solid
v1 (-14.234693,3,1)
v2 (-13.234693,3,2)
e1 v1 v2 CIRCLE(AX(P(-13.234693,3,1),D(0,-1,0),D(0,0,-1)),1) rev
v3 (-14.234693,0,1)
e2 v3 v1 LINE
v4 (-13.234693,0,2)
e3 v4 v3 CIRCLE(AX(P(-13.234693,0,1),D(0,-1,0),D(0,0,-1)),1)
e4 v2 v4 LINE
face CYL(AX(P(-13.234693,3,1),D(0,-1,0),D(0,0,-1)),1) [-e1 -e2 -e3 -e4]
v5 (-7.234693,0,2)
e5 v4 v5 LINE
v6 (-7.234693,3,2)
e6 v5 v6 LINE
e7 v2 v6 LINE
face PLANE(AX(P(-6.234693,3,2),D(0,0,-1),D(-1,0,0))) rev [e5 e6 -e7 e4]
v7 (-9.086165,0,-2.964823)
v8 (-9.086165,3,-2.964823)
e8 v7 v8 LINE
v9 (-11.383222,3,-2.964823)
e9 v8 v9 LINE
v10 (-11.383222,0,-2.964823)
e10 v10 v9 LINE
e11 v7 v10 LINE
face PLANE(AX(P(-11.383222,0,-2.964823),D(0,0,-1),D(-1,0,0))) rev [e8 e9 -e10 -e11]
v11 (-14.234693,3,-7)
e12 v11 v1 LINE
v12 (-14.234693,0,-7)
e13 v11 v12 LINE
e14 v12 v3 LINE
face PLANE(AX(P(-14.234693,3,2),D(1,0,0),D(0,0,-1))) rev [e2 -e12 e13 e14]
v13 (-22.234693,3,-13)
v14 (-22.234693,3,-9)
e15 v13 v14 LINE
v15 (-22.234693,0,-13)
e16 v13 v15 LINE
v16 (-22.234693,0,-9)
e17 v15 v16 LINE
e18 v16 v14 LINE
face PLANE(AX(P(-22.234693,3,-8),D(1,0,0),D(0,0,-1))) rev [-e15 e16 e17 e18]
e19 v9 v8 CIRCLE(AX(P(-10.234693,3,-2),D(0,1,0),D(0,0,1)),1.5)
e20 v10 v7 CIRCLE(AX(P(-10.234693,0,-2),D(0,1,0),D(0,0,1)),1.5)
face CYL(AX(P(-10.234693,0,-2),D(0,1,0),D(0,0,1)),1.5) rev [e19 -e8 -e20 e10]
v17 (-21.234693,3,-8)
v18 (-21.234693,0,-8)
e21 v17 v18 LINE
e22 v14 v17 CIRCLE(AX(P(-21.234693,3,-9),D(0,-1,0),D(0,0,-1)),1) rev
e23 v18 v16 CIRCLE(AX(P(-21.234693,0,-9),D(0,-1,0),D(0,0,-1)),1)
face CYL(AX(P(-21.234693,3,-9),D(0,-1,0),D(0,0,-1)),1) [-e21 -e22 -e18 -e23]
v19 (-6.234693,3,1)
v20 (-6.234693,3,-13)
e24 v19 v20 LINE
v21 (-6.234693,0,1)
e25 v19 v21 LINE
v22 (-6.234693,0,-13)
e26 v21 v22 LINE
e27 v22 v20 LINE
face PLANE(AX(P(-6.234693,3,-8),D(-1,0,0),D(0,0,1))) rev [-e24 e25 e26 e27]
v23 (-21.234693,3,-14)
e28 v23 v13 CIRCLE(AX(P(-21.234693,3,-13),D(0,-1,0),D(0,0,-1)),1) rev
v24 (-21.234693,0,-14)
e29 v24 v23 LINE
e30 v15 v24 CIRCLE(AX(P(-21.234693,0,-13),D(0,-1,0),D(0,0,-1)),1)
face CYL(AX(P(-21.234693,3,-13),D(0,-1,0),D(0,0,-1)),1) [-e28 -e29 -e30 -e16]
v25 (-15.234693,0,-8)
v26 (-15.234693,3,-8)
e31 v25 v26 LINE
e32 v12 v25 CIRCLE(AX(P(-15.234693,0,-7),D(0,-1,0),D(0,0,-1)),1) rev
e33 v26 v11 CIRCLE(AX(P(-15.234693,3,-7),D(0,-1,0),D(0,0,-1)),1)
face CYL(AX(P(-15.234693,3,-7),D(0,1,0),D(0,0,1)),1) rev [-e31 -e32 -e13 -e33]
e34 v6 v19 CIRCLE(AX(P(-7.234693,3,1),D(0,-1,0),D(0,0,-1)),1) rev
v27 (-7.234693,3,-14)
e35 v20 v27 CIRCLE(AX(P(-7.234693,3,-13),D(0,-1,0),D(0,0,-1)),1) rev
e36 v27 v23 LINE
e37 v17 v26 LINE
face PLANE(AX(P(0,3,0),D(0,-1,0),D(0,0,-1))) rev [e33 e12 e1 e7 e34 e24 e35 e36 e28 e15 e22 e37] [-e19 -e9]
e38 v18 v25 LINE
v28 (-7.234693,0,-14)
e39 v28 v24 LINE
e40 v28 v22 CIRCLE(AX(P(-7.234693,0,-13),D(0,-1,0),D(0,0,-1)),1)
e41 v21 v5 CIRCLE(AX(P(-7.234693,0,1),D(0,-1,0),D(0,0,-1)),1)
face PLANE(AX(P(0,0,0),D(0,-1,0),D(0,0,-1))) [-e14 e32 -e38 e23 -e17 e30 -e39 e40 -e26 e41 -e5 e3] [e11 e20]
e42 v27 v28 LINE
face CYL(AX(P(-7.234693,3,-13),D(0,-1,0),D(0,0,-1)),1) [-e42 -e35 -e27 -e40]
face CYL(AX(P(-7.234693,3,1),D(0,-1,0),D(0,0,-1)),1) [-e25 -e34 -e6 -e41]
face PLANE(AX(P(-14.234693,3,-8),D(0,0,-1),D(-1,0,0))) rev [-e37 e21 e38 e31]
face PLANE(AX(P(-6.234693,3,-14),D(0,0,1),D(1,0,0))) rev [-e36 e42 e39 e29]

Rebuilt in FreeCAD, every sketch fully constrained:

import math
import FreeCAD as App
import Part
import Sketcher
from FreeCAD import Vector


def edges_at(feature, points):
    """Names of the edges that pass closest to the given points."""
    edges = feature.Shape.Edges
    near = lambda p: min(range(len(edges)), key=lambda i: edges[i].distToShape(Part.Vertex(*p))[0])
    return sorted({f"Edge{near(p) + 1}" for p in points})


def add_polygon(sketch, points):
    """Adds a closed chain of lines whose ends are joined by coincident constraints."""
    first, n = sketch.GeometryCount, len(points)
    for a, b in zip(points, points[1:] + points[:1]):
        sketch.addGeometry(Part.LineSegment(App.Vector(*a, 0), App.Vector(*b, 0)), False)
    for i in range(n):
        sketch.addConstraint(Sketcher.Constraint("Coincident", first + i, 2, first + (i + 1) % n, 1))

doc = App.newDocument("Part")
body = doc.addObject("PartDesign::Body", "Body")

sketch1 = body.newObject("Sketcher::SketchObject", "Sketch")
sketch1.AttachmentSupport = (doc.getObject("XZ_Plane"), [""])
sketch1.MapMode = "FlatFace"
add_polygon(sketch1, [(-14, 2), (-6, 2), (-6, -14), (-22, -14), (-22, -8), (-14, -8)])
sketch1.addConstraint([
    Sketcher.Constraint("Horizontal", 0),
    Sketcher.Constraint("Vertical", 1),
    Sketcher.Constraint("Horizontal", 2),
    Sketcher.Constraint("Vertical", 3),
    Sketcher.Constraint("Horizontal", 4),
    Sketcher.Constraint("Vertical", 5),
    Sketcher.Constraint("Equal", 0, 4),
    Sketcher.Constraint("Equal", 2, 1),
    Sketcher.Constraint("DistanceX", 0, 1, 0, 2, 8.0),
    Sketcher.Constraint("DistanceY", 3, 1, 3, 2, 6.0),
    Sketcher.Constraint("DistanceY", -1, 1, 0, 2, 2.0),
    Sketcher.Constraint("DistanceX", 0, 2, -1, 1, 6.234693),
])
pad1 = body.newObject("PartDesign::Pad", "Pad")
pad1.Profile = sketch1
pad1.Length = 3
pad1.Reversed = True
doc.recompute()

fillet = body.newObject("PartDesign::Fillet", "Fillet")
fillet.Base = (pad1, edges_at(pad1, [(-22.235, 1.5, -14)]))
fillet.Radius = 1
doc.recompute()

fillet2 = body.newObject("PartDesign::Fillet", "Fillet001")
fillet2.Base = (fillet, edges_at(fillet, [(-22.235, 1.5, -8)]))
fillet2.Radius = 1
doc.recompute()

fillet3 = body.newObject("PartDesign::Fillet", "Fillet002")
fillet3.Base = (fillet2, edges_at(fillet2, [(-6.235, 1.5, -14)]))
fillet3.Radius = 1
doc.recompute()

fillet4 = body.newObject("PartDesign::Fillet", "Fillet003")
fillet4.Base = (fillet3, edges_at(fillet3, [(-14.235, 1.5, 2)]))
fillet4.Radius = 1
doc.recompute()

fillet5 = body.newObject("PartDesign::Fillet", "Fillet004")
fillet5.Base = (fillet4, edges_at(fillet4, [(-6.235, 1.5, 2)]))
fillet5.Radius = 1
doc.recompute()

fillet6 = body.newObject("PartDesign::Fillet", "Fillet005")
fillet6.Base = (fillet5, edges_at(fillet5, [(-14.235, 1.5, -8)]))
fillet6.Radius = 1

sketch2 = body.newObject("Sketcher::SketchObject", "Sketch001")
sketch2.AttachmentSupport = (doc.getObject("XZ_Plane"), [""])
sketch2.MapMode = "FlatFace"
sketch2.AttachmentOffset = App.Placement(Vector(0, 0, -3), App.Rotation())
sketch2.addGeometry([
    Part.LineSegment(Vector(-9.1, -3, 0), Vector(-11.4, -3, 0)),
    Part.ArcOfCircle(Part.Circle(Vector(-10.2, -2, 0), Vector(0, 0, 1), 1.5), math.radians(-40), math.radians(220)),
], False)
sketch2.addConstraint([
    Sketcher.Constraint("Coincident", 0, 1, 1, 1),
    Sketcher.Constraint("Coincident", 1, 2, 0, 2),
    Sketcher.Constraint("Horizontal", 0),
    Sketcher.Constraint("Radius", 1, 1.5),
    Sketcher.Constraint("DistanceY", 1, 3, -1, 1, 2.0),
    Sketcher.Constraint("DistanceX", 0, 2, 0, 1, 2.297056),
    Sketcher.Constraint("DistanceX", 1, 2, -1, 1, 11.383222),
])
pocket1 = body.newObject("PartDesign::Pocket", "Pocket")
pocket1.Profile = sketch2
pocket1.Length = 3
pocket1.Reversed = True

doc.recompute()
